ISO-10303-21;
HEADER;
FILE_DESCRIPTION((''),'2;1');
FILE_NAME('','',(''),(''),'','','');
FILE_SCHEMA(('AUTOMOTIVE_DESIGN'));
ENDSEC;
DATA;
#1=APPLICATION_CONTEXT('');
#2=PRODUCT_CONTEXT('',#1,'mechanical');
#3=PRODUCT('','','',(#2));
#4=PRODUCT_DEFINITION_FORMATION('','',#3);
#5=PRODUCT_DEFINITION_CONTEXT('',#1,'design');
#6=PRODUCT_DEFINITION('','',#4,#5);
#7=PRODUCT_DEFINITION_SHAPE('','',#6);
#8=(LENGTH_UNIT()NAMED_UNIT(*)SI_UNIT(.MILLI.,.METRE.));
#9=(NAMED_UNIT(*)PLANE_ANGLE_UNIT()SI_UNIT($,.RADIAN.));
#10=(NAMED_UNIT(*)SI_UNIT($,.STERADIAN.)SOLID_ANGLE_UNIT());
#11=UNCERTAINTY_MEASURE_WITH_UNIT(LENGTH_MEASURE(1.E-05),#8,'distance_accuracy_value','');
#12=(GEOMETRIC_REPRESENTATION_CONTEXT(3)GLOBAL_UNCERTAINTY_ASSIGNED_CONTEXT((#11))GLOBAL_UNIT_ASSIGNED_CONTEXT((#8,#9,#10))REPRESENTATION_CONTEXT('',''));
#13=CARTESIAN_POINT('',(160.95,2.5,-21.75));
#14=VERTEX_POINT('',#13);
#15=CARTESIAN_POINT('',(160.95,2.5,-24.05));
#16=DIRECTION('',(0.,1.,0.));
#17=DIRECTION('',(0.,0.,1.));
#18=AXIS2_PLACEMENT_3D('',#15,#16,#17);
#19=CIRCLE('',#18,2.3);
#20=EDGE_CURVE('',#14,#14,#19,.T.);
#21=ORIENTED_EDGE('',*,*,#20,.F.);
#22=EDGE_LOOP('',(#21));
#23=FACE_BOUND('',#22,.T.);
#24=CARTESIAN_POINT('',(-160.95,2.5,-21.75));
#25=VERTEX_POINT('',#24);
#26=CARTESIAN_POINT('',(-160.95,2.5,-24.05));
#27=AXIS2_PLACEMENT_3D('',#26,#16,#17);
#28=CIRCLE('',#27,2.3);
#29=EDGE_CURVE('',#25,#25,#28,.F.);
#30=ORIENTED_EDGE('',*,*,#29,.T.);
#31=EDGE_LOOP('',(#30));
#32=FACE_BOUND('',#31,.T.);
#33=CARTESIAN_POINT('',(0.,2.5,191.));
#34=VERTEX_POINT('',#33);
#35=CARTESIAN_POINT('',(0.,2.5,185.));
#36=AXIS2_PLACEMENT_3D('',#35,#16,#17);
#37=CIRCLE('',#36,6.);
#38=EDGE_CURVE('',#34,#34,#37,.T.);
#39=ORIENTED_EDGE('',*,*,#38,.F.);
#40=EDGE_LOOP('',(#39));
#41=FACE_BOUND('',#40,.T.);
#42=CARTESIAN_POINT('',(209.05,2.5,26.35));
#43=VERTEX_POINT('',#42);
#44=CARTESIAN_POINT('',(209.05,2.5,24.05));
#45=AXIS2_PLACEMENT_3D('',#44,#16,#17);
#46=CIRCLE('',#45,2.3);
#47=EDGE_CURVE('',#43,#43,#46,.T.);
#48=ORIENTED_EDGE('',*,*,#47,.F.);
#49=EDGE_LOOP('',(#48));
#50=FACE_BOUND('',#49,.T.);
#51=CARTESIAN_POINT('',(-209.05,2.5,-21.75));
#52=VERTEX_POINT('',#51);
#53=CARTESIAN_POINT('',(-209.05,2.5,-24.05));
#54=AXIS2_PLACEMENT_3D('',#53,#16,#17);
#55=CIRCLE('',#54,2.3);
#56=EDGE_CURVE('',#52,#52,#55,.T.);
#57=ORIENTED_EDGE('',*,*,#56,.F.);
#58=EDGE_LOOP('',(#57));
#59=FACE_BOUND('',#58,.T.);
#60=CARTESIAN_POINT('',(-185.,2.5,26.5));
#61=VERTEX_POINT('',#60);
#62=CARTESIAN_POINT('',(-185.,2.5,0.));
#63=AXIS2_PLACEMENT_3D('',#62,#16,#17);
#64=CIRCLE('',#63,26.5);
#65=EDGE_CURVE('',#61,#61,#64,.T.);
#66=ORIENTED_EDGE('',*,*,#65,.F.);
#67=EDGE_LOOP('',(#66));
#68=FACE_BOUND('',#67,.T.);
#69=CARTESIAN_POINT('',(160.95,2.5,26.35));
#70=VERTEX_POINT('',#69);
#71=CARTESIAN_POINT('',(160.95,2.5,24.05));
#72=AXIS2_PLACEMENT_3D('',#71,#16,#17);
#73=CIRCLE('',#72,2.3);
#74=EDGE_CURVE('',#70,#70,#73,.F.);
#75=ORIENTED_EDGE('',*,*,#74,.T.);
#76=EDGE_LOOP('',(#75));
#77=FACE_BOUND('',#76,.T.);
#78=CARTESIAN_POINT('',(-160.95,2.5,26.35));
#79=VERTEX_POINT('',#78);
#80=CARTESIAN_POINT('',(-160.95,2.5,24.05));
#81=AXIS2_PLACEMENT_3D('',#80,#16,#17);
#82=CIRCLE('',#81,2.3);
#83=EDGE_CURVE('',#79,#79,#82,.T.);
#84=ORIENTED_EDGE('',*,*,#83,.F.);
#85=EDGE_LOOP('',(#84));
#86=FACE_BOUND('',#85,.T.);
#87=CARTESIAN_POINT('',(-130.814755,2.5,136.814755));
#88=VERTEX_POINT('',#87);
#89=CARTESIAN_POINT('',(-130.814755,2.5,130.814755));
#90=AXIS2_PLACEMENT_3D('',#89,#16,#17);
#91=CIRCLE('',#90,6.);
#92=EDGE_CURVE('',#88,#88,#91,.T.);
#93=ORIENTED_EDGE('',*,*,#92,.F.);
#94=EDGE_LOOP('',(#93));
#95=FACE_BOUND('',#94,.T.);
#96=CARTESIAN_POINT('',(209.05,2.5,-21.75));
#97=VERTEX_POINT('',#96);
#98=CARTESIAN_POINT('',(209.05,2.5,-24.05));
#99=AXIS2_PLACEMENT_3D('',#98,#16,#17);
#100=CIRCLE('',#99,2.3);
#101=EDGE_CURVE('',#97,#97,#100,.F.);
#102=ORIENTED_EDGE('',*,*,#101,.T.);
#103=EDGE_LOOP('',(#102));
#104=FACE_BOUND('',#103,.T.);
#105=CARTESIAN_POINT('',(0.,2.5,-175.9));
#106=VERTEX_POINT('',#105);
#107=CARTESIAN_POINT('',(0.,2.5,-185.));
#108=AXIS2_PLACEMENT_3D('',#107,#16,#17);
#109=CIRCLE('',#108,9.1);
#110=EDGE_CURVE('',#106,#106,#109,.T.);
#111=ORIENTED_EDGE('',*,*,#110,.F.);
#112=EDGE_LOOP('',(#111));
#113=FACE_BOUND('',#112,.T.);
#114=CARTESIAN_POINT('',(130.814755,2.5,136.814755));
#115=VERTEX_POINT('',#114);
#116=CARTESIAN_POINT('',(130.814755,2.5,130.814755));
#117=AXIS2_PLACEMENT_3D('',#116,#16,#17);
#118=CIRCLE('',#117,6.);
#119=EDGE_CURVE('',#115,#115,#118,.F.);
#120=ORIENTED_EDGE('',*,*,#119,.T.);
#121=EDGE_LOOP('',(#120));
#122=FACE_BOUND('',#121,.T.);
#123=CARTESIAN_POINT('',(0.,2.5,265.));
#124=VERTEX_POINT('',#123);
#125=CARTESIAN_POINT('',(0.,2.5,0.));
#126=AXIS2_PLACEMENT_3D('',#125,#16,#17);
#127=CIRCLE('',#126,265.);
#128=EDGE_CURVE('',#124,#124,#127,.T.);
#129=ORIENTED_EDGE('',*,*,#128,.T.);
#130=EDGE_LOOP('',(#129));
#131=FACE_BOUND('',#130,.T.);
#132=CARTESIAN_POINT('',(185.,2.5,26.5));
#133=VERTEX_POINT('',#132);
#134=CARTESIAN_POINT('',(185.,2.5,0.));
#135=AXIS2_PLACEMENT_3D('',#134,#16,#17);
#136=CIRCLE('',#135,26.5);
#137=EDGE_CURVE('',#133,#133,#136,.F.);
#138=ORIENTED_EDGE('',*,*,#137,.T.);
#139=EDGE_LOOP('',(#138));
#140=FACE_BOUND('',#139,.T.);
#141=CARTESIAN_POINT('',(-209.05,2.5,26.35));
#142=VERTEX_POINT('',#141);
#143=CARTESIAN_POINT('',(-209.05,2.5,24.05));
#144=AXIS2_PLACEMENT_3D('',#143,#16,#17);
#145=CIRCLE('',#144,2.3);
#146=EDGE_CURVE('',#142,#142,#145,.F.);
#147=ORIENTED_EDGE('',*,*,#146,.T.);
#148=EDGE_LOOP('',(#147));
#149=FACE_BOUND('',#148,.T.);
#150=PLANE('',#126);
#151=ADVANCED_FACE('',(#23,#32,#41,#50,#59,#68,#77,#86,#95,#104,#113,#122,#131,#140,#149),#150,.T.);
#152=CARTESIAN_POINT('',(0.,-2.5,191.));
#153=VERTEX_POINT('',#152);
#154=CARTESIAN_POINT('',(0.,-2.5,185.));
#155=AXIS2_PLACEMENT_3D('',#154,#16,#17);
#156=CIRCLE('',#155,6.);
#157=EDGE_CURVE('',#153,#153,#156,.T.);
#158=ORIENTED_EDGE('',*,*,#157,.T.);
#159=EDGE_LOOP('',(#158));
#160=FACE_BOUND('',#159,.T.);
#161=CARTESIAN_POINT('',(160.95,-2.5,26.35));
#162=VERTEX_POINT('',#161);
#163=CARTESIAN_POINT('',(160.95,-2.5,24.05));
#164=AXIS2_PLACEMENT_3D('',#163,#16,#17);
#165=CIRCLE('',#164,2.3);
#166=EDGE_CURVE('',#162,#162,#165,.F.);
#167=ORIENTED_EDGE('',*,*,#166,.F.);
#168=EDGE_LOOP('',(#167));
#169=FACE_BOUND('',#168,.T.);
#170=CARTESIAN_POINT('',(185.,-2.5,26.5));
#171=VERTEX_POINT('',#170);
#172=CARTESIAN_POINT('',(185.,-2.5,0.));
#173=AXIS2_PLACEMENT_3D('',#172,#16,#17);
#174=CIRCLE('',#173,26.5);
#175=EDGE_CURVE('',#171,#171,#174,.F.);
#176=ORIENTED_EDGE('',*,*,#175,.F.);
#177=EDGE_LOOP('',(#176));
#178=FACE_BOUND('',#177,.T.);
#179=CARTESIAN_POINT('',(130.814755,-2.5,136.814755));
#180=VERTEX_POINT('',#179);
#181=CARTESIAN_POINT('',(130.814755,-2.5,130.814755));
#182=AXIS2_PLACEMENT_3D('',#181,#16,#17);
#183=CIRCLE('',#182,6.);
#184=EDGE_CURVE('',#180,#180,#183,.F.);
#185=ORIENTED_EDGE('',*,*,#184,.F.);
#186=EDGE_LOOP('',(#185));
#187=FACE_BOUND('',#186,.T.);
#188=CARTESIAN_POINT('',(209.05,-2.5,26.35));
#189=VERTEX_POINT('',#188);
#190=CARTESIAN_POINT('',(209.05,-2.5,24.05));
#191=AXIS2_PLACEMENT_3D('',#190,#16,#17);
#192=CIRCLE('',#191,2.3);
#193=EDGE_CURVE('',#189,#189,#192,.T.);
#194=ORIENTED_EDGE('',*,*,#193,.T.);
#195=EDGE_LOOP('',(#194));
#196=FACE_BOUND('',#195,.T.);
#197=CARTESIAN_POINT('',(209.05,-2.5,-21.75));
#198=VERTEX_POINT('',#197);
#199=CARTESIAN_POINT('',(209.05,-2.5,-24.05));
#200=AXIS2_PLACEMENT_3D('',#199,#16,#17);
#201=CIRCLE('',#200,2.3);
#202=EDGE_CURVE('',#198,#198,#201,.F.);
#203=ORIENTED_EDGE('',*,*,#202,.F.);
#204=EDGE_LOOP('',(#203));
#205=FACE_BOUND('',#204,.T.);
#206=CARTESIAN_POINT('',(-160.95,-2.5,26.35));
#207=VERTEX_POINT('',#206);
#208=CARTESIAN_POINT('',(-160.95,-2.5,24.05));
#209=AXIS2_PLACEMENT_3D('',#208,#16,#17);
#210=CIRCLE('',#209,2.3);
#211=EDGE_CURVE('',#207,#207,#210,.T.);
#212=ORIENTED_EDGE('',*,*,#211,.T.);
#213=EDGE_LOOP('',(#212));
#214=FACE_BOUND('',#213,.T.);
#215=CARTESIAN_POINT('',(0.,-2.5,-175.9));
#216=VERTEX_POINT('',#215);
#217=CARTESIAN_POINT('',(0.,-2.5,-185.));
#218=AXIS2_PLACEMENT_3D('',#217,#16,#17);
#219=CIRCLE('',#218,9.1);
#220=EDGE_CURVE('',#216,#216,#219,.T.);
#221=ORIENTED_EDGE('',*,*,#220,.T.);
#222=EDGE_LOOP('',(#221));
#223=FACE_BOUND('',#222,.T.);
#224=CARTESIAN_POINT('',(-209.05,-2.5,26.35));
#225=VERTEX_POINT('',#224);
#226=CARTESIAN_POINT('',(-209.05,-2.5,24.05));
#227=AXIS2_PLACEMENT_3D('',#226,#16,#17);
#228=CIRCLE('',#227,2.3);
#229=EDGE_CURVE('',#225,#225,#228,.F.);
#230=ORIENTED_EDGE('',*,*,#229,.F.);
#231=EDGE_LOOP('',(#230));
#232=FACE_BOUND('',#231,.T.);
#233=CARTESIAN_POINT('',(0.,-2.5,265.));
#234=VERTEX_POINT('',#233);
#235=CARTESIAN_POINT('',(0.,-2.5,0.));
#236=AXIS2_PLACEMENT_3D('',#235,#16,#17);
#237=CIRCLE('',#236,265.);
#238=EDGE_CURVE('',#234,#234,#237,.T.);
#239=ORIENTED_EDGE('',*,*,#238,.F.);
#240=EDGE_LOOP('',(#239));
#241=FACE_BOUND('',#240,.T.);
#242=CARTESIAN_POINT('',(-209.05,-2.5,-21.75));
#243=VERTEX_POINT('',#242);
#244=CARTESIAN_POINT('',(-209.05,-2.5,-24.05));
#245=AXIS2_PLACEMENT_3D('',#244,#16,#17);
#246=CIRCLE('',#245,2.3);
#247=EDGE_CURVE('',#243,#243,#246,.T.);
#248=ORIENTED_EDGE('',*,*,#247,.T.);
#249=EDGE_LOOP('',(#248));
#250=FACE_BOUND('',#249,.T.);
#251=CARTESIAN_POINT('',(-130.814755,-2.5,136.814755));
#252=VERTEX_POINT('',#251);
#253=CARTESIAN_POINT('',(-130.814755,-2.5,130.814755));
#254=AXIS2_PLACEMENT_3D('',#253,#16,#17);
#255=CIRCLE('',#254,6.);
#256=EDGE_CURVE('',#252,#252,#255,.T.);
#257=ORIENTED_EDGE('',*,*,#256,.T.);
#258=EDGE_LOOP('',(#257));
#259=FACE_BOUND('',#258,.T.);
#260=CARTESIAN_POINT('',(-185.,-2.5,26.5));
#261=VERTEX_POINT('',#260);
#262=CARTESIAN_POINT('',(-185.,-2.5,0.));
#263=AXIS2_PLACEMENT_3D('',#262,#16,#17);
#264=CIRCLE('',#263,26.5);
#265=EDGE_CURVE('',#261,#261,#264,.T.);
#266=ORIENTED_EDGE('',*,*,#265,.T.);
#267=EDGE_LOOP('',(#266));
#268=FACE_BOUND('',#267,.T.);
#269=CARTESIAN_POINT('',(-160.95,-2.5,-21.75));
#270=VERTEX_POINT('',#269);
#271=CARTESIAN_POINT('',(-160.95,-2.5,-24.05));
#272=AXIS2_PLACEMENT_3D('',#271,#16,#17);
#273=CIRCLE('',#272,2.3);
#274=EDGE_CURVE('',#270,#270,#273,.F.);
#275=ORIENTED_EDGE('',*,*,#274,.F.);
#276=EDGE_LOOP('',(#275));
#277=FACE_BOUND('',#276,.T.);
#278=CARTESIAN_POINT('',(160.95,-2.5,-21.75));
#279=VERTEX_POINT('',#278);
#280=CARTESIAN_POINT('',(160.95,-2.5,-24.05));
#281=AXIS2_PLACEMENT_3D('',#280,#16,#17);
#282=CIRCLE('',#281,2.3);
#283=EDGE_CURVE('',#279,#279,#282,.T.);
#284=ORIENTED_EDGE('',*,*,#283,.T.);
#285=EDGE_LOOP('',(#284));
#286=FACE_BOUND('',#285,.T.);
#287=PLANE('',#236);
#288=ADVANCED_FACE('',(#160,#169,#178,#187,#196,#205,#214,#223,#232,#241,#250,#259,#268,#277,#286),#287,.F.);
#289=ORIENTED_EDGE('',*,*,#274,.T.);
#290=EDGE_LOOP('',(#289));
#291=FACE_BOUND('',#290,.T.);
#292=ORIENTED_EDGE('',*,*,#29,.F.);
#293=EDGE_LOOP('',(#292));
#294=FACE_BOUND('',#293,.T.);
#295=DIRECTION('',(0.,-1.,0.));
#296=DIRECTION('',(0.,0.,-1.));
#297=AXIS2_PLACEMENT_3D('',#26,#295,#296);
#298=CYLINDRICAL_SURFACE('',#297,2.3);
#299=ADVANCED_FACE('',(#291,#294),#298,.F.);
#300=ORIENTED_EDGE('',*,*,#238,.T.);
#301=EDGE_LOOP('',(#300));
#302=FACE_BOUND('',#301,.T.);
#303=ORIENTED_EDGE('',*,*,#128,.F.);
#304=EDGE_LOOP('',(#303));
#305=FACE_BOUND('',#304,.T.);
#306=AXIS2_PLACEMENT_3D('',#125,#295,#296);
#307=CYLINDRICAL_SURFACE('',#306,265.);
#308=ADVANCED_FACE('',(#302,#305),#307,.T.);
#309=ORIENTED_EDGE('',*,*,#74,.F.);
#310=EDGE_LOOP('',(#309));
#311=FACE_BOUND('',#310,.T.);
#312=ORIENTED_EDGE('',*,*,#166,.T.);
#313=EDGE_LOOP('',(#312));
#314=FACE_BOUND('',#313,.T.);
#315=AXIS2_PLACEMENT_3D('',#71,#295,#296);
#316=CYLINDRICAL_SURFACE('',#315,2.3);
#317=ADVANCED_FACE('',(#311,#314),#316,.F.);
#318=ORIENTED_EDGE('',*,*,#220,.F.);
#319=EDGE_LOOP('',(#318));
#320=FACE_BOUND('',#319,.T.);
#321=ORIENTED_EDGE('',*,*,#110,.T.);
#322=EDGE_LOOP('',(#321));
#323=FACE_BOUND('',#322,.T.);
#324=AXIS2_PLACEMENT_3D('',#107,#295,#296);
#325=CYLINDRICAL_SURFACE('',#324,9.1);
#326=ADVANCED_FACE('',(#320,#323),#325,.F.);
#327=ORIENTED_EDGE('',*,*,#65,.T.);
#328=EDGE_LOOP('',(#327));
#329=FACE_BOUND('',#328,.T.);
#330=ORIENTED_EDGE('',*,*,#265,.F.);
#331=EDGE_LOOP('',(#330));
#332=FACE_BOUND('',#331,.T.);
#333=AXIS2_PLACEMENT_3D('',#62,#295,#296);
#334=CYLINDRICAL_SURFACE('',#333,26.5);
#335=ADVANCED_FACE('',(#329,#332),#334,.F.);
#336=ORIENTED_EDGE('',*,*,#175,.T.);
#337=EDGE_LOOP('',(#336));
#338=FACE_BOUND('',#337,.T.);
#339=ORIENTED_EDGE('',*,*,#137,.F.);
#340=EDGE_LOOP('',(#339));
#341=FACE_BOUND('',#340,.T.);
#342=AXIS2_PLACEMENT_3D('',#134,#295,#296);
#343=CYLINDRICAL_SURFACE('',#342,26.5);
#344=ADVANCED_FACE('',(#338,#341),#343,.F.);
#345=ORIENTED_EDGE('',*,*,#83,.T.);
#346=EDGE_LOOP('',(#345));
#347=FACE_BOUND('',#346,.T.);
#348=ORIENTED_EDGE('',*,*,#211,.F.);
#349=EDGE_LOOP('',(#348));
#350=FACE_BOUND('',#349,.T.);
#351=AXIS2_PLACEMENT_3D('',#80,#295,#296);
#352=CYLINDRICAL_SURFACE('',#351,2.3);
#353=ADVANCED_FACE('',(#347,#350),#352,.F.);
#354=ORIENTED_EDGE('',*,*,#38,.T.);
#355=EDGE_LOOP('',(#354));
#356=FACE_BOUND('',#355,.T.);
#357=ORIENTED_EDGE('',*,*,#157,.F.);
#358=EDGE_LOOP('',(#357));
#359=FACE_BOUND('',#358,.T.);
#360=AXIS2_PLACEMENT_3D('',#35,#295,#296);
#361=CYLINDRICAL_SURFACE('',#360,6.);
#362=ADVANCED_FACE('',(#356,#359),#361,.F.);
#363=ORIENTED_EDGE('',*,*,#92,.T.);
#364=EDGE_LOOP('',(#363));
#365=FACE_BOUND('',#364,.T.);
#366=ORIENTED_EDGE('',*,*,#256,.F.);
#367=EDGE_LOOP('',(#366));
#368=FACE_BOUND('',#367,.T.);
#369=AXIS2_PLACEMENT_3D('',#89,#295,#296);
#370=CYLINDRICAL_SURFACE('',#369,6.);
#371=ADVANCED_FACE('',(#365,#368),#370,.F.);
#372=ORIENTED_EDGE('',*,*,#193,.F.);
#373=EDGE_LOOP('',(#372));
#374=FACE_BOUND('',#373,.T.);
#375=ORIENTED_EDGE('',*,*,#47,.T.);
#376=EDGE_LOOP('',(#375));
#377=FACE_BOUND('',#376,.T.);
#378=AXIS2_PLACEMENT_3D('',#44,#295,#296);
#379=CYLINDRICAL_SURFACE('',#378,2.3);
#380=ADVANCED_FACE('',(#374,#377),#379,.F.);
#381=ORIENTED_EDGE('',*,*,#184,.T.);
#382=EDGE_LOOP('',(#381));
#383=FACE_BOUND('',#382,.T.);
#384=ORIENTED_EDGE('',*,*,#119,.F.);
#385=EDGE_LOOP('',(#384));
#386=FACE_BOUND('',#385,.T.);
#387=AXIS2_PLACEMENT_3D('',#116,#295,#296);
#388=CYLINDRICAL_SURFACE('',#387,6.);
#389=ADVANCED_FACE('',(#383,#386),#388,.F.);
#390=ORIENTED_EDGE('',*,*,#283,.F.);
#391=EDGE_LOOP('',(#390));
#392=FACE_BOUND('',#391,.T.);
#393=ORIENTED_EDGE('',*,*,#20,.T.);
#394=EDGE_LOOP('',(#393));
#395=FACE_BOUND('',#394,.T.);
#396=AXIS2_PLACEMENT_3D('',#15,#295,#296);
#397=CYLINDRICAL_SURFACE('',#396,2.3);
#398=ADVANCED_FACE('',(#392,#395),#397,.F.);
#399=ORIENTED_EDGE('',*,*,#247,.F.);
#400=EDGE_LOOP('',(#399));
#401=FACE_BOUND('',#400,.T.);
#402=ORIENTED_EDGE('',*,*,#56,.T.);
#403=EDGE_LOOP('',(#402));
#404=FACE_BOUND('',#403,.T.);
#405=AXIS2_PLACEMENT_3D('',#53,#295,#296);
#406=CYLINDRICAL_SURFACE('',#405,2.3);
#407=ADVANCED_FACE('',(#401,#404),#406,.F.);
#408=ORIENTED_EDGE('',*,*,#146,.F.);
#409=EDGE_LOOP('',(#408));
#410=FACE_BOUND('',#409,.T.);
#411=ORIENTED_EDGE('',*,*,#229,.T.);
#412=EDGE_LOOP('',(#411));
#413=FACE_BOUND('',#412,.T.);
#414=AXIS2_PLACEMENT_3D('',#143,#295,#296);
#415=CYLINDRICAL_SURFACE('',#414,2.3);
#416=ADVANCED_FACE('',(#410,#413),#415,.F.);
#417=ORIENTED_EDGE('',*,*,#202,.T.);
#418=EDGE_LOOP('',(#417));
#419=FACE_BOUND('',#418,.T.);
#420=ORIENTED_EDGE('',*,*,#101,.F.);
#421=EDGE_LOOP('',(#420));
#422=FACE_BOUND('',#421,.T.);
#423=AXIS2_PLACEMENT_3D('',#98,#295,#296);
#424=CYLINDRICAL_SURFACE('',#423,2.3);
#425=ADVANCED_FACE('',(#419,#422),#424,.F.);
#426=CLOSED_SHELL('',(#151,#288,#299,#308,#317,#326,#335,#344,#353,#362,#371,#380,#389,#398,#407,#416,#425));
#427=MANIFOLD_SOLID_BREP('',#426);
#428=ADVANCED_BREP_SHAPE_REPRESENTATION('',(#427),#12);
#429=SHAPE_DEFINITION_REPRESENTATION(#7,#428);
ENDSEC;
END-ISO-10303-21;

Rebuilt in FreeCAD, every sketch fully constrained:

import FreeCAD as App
import Part
import Sketcher

V = App.Vector

doc = App.newDocument("Part")
body = doc.addObject("PartDesign::Body", "Body")

sketch1 = body.newObject("Sketcher::SketchObject", "Sketch")
sketch1.AttachmentSupport = (doc.getObject("XZ_Plane"), [""])
sketch1.MapMode = "FlatFace"
sketch1.addGeometry([
    Part.Circle(V(0, 0, 0), V(0, 0, 1), 265),
    Part.Circle(V(-209.1, -24.1, 0), V(0, 0, 1), 2.3),
    Part.Circle(V(-160.9, -24.1, 0), V(0, 0, 1), 2.3),
    Part.Circle(V(0, -185, 0), V(0, 0, 1), 9.1),
    Part.Circle(V(-209.1, 24.1, 0), V(0, 0, 1), 2.3),
    Part.Circle(V(-185, 0, 0), V(0, 0, 1), 26.5),
    Part.Circle(V(-160.9, 24.1, 0), V(0, 0, 1), 2.3),
    Part.Circle(V(-130.8, 130.8, 0), V(0, 0, 1), 6),
    Part.Circle(V(160.9, -24.1, 0), V(0, 0, 1), 2.3),
    Part.Circle(V(209.1, -24.1, 0), V(0, 0, 1), 2.3),
    Part.Circle(V(0, 185, 0), V(0, 0, 1), 6),
    Part.Circle(V(185, 0, 0), V(0, 0, 1), 26.5),
    Part.Circle(V(160.9, 24.1, 0), V(0, 0, 1), 2.3),
    Part.Circle(V(209.1, 24.1, 0), V(0, 0, 1), 2.3),
    Part.Circle(V(130.8, 130.8, 0), V(0, 0, 1), 6),
], False)
sketch1.addConstraint([
    Sketcher.Constraint("Coincident", 0, 3, -1, 1),
    Sketcher.Constraint("Equal", 1, 2),
    Sketcher.Constraint("Equal", 2, 4),
    Sketcher.Constraint("Equal", 4, 6),
    Sketcher.Constraint("Equal", 6, 8),
    Sketcher.Constraint("Equal", 8, 9),
    Sketcher.Constraint("Equal", 7, 10),
    Sketcher.Constraint("Equal", 5, 11),
    Sketcher.Constraint("Equal", 9, 12),
    Sketcher.Constraint("Equal", 12, 13),
    Sketcher.Constraint("Equal", 10, 14),
    Sketcher.Constraint("Symmetric", 6, 3, 8, 3, -1, 1),
    Sketcher.Constraint("Symmetric", 4, 3, 9, 3, -1, 1),
    Sketcher.Constraint("Symmetric", 3, 3, 10, 3, -1, 1),
    Sketcher.Constraint("Symmetric", 5, 3, 11, 3, -1, 1),
    Sketcher.Constraint("Symmetric", 2, 3, 12, 3, -1, 1),
    Sketcher.Constraint("Symmetric", 1, 3, 13, 3, -1, 1),
    Sketcher.Constraint("Symmetric", 2, 3, 8, 3, -2),
    Sketcher.Constraint("Symmetric", 1, 3, 9, 3, -2),
    Sketcher.Constraint("Symmetric", 7, 3, 14, 3, -2),
    Sketcher.Constraint("PointOnObject", 3, 3, -2),
    Sketcher.Constraint("PointOnObject", 5, 3, -1),
    Sketcher.Constraint("Horizontal", 1, 3, 2, 3),
    Sketcher.Constraint("Diameter", 0, 530.0),
    Sketcher.Constraint("Diameter", 5, 53.0),
    Sketcher.Constraint("Diameter", 7, 12.0),
    Sketcher.Constraint("Diameter", 1, 4.6),
    Sketcher.Constraint("Diameter", 3, 18.2),
    Sketcher.Constraint("DistanceY", 3, 3, -1, 1, 185.0),
    Sketcher.Constraint("DistanceX", 5, 3, -1, 1, 185.0),
    Sketcher.Constraint("DistanceX", 2, 3, 9, 3, 370.0),
    Sketcher.Constraint("DistanceX", 1, 3, 2, 3, 48.1),
    Sketcher.Constraint("DistanceY", 1, 3, 4, 3, 48.1),
    Sketcher.Constraint("DistanceX", 7, 3, -1, 1, 130.814755),
    Sketcher.Constraint("DistanceY", -1, 1, 7, 3, 130.814755),
])
pad1 = body.newObject("PartDesign::Pad", "Pad")
pad1.Profile = sketch1
pad1.Length = 5
pad1.Midplane = True

doc.recompute()
